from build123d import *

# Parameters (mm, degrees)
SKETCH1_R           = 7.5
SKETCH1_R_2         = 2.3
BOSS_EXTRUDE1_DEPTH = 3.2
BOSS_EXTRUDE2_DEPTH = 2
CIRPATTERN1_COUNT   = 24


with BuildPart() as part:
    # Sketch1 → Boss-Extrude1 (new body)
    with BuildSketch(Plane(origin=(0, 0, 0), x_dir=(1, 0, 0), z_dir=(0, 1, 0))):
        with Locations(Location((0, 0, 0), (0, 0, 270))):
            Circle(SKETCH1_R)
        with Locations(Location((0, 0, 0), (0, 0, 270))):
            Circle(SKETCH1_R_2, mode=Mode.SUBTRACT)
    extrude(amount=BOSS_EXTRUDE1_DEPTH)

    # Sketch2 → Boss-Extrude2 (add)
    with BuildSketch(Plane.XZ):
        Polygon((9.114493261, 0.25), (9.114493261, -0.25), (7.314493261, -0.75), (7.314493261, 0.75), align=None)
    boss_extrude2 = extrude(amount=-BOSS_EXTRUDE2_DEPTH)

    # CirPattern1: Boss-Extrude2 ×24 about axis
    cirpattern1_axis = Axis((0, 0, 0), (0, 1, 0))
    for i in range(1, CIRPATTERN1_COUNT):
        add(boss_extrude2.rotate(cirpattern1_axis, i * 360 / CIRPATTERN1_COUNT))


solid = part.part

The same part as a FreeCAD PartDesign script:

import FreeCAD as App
import Part
import Sketcher


def add_polygon(sketch, points):
    """Adds a closed chain of lines whose ends are joined by coincident constraints."""
    first, n = sketch.GeometryCount, len(points)
    for a, b in zip(points, points[1:] + points[:1]):
        sketch.addGeometry(Part.LineSegment(App.Vector(*a, 0), App.Vector(*b, 0)), False)
    for i in range(n):
        sketch.addConstraint(Sketcher.Constraint("Coincident", first + i, 2, first + (i + 1) % n, 1))

doc = App.newDocument("Part")
params = doc.addObject("Spreadsheet::Sheet", "Params")
for row, (alias, value) in enumerate([
    ("sketch1_diameter", "15 mm"),
    ("sketch1_diameter2", "4.6 mm"),
    ("pad1_length", "3.2 mm"),
    ("sketch2_height", "0.5 mm"),
    ("sketch2_height2", "1.5 mm"),
    ("pad2_length", "2 mm"),
], start=1):
    params.set(f"A{row}", alias)
    params.set(f"B{row}", "=" + value)
    params.setAlias(f"B{row}", alias)

body = doc.addObject("PartDesign::Body", "Body")

sketch1 = body.newObject("Sketcher::SketchObject", "Sketch")
sketch1.AttachmentSupport = (doc.getObject("XZ_Plane"), [""])
sketch1.MapMode = "FlatFace"
sketch1.addGeometry([
    Part.Circle(App.Vector(0, 0, 0), App.Vector(0, 0, 1), 7.5),
    Part.Circle(App.Vector(0, 0, 0), App.Vector(0, 0, 1), 2.3),
], False)
sketch1.addConstraint([
    Sketcher.Constraint("Coincident", 0, 3, -1, 1),
    Sketcher.Constraint("Coincident", 1, 3, -1, 1),
    Sketcher.Constraint("Diameter", 0, 15.0),
    Sketcher.Constraint("Diameter", 1, 4.6),
])
sketch1.setExpression("Constraints[2]", "Params.sketch1_diameter")
sketch1.setExpression("Constraints[3]", "Params.sketch1_diameter2")
pad1 = body.newObject("PartDesign::Pad", "Pad")
pad1.Profile = sketch1
pad1.setExpression("Length", "Params.pad1_length")
pad1.Reversed = True

sketch2 = body.newObject("Sketcher::SketchObject", "Sketch001")
sketch2.AttachmentSupport = (doc.getObject("XZ_Plane"), [""])
sketch2.MapMode = "FlatFace"
add_polygon(sketch2, [(9.1, -0.2), (9.1, 0.2), (7.3, 0.8), (7.3, -0.8)])
sketch2.addConstraint([
    Sketcher.Constraint("Vertical", 0),
    Sketcher.Constraint("Vertical", 2),
    Sketcher.Constraint("Equal", 1, 3),
    Sketcher.Constraint("DistanceY", 0, 1, 0, 2, 0.5),
    Sketcher.Constraint("DistanceY", 2, 2, 2, 1, 1.5),
    Sketcher.Constraint("DistanceX", 1, 2, 0, 2, 1.8),
    Sketcher.Constraint("DistanceY", -1, 1, 0, 2, 0.25),
    Sketcher.Constraint("DistanceX", -1, 1, 0, 2, 9.114493),
])
sketch2.setExpression("Constraints[7]", "Params.sketch2_height")
sketch2.setExpression("Constraints[8]", "Params.sketch2_height2")
pad2 = body.newObject("PartDesign::Pad", "Pad001")
pad2.Profile = sketch2
pad2.setExpression("Length", "Params.pad2_length")
pad2.Reversed = True
doc.recompute()

polarpattern = body.newObject("PartDesign::PolarPattern", "PolarPattern")
polarpattern.Originals = [pad2]
polarpattern.Axis = (doc.getObject("Y_Axis"), [""])
polarpattern.Angle = 360
polarpattern.Occurrences = 24
body.Tip = polarpattern

doc.recompute()
